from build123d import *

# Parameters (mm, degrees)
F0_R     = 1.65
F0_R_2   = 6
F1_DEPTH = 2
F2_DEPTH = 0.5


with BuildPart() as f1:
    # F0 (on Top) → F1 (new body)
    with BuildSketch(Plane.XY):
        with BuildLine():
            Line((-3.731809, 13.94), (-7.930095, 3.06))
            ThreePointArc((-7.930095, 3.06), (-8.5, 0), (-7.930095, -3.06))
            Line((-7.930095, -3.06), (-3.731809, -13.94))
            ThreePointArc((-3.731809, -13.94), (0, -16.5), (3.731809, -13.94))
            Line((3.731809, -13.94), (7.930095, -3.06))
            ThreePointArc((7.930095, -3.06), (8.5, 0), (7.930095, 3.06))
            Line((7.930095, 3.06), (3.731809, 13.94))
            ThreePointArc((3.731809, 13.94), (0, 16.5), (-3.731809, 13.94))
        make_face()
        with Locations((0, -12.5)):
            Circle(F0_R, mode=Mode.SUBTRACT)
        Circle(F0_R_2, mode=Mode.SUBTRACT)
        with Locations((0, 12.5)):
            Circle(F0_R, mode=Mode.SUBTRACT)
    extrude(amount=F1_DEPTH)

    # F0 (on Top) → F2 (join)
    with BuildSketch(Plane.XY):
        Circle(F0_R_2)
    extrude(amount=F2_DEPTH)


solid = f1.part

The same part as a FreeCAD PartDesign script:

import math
import FreeCAD as App
import Part
import Sketcher
from FreeCAD import Vector

doc = App.newDocument("Part")
body = doc.addObject("PartDesign::Body", "Body")

# Sketch on XY plane
sketch1 = body.newObject("Sketcher::SketchObject", "Sketch")
sketch1.AttachmentSupport = (doc.getObject("XY_Plane"), [""])
sketch1.MapMode = "FlatFace"
sketch1.addGeometry(Part.LineSegment(Vector(-3.7, 13.9, 0), Vector(-7.9, 3.1, 0)), False)
sketch1.addGeometry(Part.ArcOfCircle(Part.Circle(Vector(0, 0, 0), Vector(0, 0, 1), 8.5), math.radians(159), math.radians(201)), False)
sketch1.addGeometry(Part.LineSegment(Vector(-7.9, -3.1, 0), Vector(-3.7, -13.9, 0)), False)
sketch1.addGeometry(Part.ArcOfCircle(Part.Circle(Vector(0, -12.5, 0), Vector(0, 0, 1), 4), math.radians(-159), math.radians(-21)), False)
sketch1.addGeometry(Part.LineSegment(Vector(3.7, -13.9, 0), Vector(7.9, -3.1, 0)), False)
sketch1.addGeometry(Part.ArcOfCircle(Part.Circle(Vector(0, 0, 0), Vector(0, 0, 1), 8.5), math.radians(-21), math.radians(21)), False)
sketch1.addGeometry(Part.LineSegment(Vector(7.9, 3.1, 0), Vector(3.7, 13.9, 0)), False)
sketch1.addGeometry(Part.ArcOfCircle(Part.Circle(Vector(0, 12.5, 0), Vector(0, 0, 1), 4), math.radians(21), math.radians(159)), False)
sketch1.addGeometry(Part.Circle(Vector(0, -12.5, 0), Vector(0, 0, 1), 1.6), False)
sketch1.addGeometry(Part.Circle(Vector(0, 0, 0), Vector(0, 0, 1), 6), False)
sketch1.addGeometry(Part.Circle(Vector(0, 12.5, 0), Vector(0, 0, 1), 1.6), False)
sketch1.addConstraint(Sketcher.Constraint("Tangent", 0, 2, 1, 1))
sketch1.addConstraint(Sketcher.Constraint("Tangent", 1, 2, 2, 1))
sketch1.addConstraint(Sketcher.Constraint("Tangent", 2, 2, 3, 1))
sketch1.addConstraint(Sketcher.Constraint("Tangent", 3, 2, 4, 1))
sketch1.addConstraint(Sketcher.Constraint("Tangent", 4, 2, 5, 1))
sketch1.addConstraint(Sketcher.Constraint("Tangent", 5, 2, 6, 1))
sketch1.addConstraint(Sketcher.Constraint("Tangent", 6, 2, 7, 1))
sketch1.addConstraint(Sketcher.Constraint("Tangent", 7, 2, 0, 1))
sketch1.addConstraint(Sketcher.Constraint("Coincident", 1, 3, -1, 1))
sketch1.addConstraint(Sketcher.Constraint("Coincident", 5, 3, -1, 1))
sketch1.addConstraint(Sketcher.Constraint("Coincident", 9, 3, -1, 1))
sketch1.addConstraint(Sketcher.Constraint("Coincident", 8, 3, 3, 3))
sketch1.addConstraint(Sketcher.Constraint("Coincident", 10, 3, 7, 3))
sketch1.addConstraint(Sketcher.Constraint("Equal", 1, 5))
sketch1.addConstraint(Sketcher.Constraint("Equal", 3, 7))
sketch1.addConstraint(Sketcher.Constraint("Equal", 8, 10))
sketch1.addConstraint(Sketcher.Constraint("Symmetric", 3, 3, 7, 3, -1, 1))
sketch1.addConstraint(Sketcher.Constraint("PointOnObject", 3, 3, -2))
sketch1.addConstraint(Sketcher.Constraint("Diameter", 9, 12.0))
sketch1.addConstraint(Sketcher.Constraint("Radius", 3, 4.0))
sketch1.addConstraint(Sketcher.Constraint("Diameter", 8, 3.3))
sketch1.addConstraint(Sketcher.Constraint("DistanceY", 3, 3, 7, 3, 25.000001))
sketch1.addConstraint(Sketcher.Constraint("DistanceY", -1, 1, 0, 2, 3.06))
pad1 = body.newObject("PartDesign::Pad", "Pad")
pad1.Profile = sketch1
pad1.Length = 2

# Sketch on XY plane
sketch2 = body.newObject("Sketcher::SketchObject", "Sketch001")
sketch2.AttachmentSupport = (doc.getObject("XY_Plane"), [""])
sketch2.MapMode = "FlatFace"
sketch2.addGeometry(Part.Circle(Vector(0, 0, 0), Vector(0, 0, 1), 6), False)
sketch2.addConstraint(Sketcher.Constraint("Coincident", 0, 3, -1, 1))
sketch2.addConstraint(Sketcher.Constraint("Diameter", 0, 12.0))
pad2 = body.newObject("PartDesign::Pad", "Pad001")
pad2.Profile = sketch2
pad2.Length = 0.5

doc.recompute()
